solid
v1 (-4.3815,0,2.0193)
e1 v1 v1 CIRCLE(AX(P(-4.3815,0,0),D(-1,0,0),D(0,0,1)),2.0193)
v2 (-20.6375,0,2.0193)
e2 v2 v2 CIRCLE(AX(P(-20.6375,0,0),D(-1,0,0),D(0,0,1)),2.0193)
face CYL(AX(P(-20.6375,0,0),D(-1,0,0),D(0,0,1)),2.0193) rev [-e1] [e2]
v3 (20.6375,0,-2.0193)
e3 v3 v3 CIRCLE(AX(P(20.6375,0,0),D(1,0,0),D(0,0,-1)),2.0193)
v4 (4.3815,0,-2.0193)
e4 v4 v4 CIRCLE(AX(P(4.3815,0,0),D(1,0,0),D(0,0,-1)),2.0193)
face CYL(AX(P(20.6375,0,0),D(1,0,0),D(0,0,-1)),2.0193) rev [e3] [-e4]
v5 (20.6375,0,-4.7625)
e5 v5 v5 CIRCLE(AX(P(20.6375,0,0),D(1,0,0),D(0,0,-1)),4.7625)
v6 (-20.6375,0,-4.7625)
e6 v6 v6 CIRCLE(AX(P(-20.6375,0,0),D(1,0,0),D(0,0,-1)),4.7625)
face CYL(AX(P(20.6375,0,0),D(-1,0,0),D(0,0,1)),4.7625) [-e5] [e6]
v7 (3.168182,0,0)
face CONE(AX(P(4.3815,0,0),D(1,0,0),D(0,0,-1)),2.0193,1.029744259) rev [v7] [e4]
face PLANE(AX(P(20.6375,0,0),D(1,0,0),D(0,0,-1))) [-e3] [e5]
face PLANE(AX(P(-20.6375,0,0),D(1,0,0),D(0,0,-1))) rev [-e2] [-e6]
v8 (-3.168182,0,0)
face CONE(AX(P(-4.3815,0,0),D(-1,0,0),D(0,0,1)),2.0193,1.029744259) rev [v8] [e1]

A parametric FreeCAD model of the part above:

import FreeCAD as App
import Part
import Sketcher
Q = App.Units.Quantity

doc = App.newDocument("Part")
params = doc.addObject("Spreadsheet::Sheet", "Params")
for row, (alias, value) in enumerate([
    ("sketch1_diameter", "0.375 in"),
    ("pad1_length", "1.625 in"),
    ("sketch2_diameter", "0.159 in"),
    ("hole_diameter", "0.159 in"),
    ("hole_depth", "0.64 in"),
    ("sketch3_diameter", "0.159 in"),
    ("hole2_diameter", "0.159 in"),
    ("hole2_depth", "0.64 in"),
], start=1):
    params.set(f"A{row}", alias)
    params.set(f"B{row}", "=" + value)
    params.setAlias(f"B{row}", alias)

body = doc.addObject("PartDesign::Body", "Body")

sketch1 = doc.addObject("Sketcher::SketchObject", "Sketch")
body.addObject(sketch1)
sketch1.AttachmentSupport = (doc.YZ_Plane, [""])
sketch1.MapMode = "FlatFace"
sketch1.addGeometry(Part.Circle(App.Vector(0, 0, 0), App.Vector(0, 0, 1), 4.8), False)
sketch1.addConstraint(Sketcher.Constraint("Coincident", 0, 3, -1, 1))
sketch1.addConstraint(Sketcher.Constraint("Diameter", 0, Q("0.375 in")))
sketch1.setExpression("Constraints[1]", "Params.sketch1_diameter")
pad1 = doc.addObject("PartDesign::Pad", "Pad")
body.addObject(pad1)
pad1.Profile = sketch1
pad1.setExpression("Length", "Params.pad1_length")
pad1.Midplane = True

sketch2 = doc.addObject("Sketcher::SketchObject", "Sketch001")
body.addObject(sketch2)
sketch2.AttachmentSupport = (doc.YZ_Plane, [""])
sketch2.MapMode = "FlatFace"
sketch2.AttachmentOffset = App.Placement(App.Vector(0, 0, 0.8125 * 25.4), App.Rotation())
sketch2.addGeometry(Part.Circle(App.Vector(0, 0, 0), App.Vector(0, 0, 1), 2), False)
sketch2.addConstraint(Sketcher.Constraint("Coincident", 0, 3, -1, 1))
sketch2.addConstraint(Sketcher.Constraint("Diameter", 0, Q("0.159 in")))
sketch2.setExpression("Constraints[1]", "Params.sketch2_diameter")
doc.recompute()
hole = doc.addObject("PartDesign::Hole", "Hole")
body.addObject(hole)
hole.Profile = sketch2
hole.ThreadType = "None"
hole.setExpression("Diameter", "Params.hole_diameter")
hole.DepthType = "Dimension"
hole.setExpression("Depth", "Params.hole_depth")
hole.DrillPoint = "Angled"
hole.DrillPointAngle = 118

sketch3 = doc.addObject("Sketcher::SketchObject", "Sketch002")
body.addObject(sketch3)
sketch3.AttachmentSupport = (doc.YZ_Plane, [""])
sketch3.MapMode = "FlatFace"
sketch3.AttachmentOffset = App.Placement(App.Vector(0, 0, -0.8125 * 25.4), App.Rotation())
sketch3.addGeometry(Part.Circle(App.Vector(0, 0, 0), App.Vector(0, 0, 1), 2), False)
sketch3.addConstraint(Sketcher.Constraint("Coincident", 0, 3, -1, 1))
sketch3.addConstraint(Sketcher.Constraint("Diameter", 0, Q("0.159 in")))
sketch3.setExpression("Constraints[1]", "Params.sketch3_diameter")
doc.recompute()
hole2 = doc.addObject("PartDesign::Hole", "Hole001")
body.addObject(hole2)
hole2.Profile = sketch3
hole2.ThreadType = "None"
hole2.setExpression("Diameter", "Params.hole2_diameter")
hole2.DepthType = "Dimension"
hole2.setExpression("Depth", "Params.hole2_depth")
hole2.DrillPoint = "Angled"
hole2.DrillPointAngle = 118
hole2.Reversed = True

doc.recompute()
